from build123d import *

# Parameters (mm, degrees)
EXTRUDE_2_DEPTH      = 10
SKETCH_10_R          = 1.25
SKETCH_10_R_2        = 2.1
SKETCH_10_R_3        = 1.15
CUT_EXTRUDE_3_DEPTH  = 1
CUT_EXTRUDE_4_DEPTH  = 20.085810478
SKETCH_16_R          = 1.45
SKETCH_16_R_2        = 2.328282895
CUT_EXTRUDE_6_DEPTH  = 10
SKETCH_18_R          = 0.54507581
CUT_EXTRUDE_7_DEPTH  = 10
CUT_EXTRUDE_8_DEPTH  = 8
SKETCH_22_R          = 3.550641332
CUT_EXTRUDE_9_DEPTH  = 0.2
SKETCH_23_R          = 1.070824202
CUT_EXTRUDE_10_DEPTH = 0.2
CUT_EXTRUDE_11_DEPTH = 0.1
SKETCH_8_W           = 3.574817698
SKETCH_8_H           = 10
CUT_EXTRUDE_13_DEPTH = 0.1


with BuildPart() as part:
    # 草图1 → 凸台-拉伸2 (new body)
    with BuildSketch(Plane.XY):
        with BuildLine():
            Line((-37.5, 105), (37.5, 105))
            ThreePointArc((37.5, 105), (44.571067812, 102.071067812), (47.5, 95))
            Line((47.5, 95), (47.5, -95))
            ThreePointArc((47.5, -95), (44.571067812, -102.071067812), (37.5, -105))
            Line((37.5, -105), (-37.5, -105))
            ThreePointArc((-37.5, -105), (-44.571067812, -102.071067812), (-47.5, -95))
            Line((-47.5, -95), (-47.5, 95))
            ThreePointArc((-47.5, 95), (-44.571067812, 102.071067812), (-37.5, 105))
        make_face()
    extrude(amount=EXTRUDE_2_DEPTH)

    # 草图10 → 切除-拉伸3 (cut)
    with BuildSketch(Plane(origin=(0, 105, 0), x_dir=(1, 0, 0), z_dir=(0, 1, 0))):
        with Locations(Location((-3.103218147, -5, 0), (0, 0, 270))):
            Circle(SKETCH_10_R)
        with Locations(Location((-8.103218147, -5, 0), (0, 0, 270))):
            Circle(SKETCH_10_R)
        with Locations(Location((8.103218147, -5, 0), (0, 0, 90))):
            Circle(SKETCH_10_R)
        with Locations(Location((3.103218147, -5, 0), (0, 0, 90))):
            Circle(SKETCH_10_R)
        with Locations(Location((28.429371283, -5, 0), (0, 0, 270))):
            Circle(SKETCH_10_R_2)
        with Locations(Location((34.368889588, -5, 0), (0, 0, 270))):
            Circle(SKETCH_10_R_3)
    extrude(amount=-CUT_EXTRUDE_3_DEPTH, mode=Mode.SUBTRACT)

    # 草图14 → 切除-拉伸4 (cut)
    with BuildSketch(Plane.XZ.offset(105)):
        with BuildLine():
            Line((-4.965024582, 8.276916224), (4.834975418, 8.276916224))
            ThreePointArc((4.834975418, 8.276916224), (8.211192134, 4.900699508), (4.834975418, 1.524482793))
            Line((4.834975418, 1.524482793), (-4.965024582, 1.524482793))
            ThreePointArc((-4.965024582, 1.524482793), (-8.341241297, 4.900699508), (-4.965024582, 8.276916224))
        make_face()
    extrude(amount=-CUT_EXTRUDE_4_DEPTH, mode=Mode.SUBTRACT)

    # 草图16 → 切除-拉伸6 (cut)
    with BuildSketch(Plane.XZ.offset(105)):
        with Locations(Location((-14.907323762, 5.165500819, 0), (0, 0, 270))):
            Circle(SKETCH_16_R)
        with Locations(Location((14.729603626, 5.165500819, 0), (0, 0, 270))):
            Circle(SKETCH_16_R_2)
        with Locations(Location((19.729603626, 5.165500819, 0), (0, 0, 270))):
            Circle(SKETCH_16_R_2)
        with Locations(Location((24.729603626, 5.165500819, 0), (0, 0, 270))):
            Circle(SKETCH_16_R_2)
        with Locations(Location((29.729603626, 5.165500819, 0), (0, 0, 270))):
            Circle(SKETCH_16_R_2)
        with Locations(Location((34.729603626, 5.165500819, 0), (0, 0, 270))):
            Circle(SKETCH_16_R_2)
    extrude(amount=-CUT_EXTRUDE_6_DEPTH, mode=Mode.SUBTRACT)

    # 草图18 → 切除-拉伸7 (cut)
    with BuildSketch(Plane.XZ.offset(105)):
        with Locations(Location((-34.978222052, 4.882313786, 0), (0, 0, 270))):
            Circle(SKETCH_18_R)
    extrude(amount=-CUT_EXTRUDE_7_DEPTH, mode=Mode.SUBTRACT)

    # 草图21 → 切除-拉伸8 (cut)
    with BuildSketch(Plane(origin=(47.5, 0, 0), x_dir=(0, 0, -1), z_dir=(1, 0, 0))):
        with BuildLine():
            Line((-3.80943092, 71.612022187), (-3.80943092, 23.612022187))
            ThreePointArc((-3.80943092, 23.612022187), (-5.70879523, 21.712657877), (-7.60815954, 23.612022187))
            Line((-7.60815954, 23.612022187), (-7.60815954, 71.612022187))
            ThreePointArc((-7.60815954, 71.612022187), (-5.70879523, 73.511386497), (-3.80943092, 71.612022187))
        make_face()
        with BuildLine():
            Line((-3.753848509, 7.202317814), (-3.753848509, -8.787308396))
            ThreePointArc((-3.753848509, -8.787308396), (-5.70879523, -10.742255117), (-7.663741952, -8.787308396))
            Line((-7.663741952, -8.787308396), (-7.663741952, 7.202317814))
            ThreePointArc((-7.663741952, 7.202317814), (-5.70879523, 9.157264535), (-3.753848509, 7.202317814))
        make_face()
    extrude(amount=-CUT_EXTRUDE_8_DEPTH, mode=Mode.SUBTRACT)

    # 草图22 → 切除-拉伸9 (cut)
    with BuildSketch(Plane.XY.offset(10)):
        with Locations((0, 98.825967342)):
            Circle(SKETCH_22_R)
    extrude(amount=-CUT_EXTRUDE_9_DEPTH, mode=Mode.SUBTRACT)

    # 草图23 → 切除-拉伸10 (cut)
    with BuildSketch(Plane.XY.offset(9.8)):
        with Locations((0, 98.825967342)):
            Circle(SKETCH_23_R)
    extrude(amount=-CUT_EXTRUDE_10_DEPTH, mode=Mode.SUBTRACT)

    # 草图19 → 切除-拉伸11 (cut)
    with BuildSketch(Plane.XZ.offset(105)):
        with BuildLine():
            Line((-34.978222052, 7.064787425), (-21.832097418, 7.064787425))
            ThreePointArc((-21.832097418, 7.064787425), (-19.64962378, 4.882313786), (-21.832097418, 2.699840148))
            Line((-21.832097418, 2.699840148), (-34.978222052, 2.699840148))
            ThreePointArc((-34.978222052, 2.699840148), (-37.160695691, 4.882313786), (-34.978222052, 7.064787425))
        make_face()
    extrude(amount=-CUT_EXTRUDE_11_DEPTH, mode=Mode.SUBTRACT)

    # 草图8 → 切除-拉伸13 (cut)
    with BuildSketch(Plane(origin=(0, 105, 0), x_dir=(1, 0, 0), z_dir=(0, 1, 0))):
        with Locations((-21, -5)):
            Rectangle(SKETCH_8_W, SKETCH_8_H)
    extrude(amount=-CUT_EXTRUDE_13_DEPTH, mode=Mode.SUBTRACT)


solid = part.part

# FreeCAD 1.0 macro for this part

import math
import FreeCAD as App
import Part
import Sketcher
Q = App.Units.Quantity

doc = App.newDocument("Part")
body = doc.addObject("PartDesign::Body", "Body")

# Sketch on XY plane
sketch1 = body.newObject("Sketcher::SketchObject", "Sketch")
sketch1.AttachmentSupport = (doc.getObject("XY_Plane"), [""])
sketch1.MapMode = "FlatFace"
sketch1.addGeometry([
    Part.LineSegment(App.Vector(38, 105, 0), App.Vector(-38, 105, 0)),  # 0
    Part.ArcOfCircle(Part.Circle(App.Vector(-38, 95, 0), App.Vector(0, 0, 1), 10), math.radians(90), math.radians(180)),  # 1
    Part.LineSegment(App.Vector(-48, 95, 0), App.Vector(-48, -95, 0)),  # 2
    Part.ArcOfCircle(Part.Circle(App.Vector(-38, -95, 0), App.Vector(0, 0, 1), 10), math.radians(180), math.radians(270)),  # 3
    Part.LineSegment(App.Vector(-38, -105, 0), App.Vector(38, -105, 0)),  # 4
    Part.ArcOfCircle(Part.Circle(App.Vector(38, -95, 0), App.Vector(0, 0, 1), 10), math.radians(-90), math.radians(0)),  # 5
    Part.LineSegment(App.Vector(48, -95, 0), App.Vector(48, 95, 0)),  # 6
    Part.ArcOfCircle(Part.Circle(App.Vector(38, 95, 0), App.Vector(0, 0, 1), 10), math.radians(0), math.radians(90)),  # 7
], False)
sketch1.addConstraint([
    Sketcher.Constraint("Tangent", 0, 2, 1, 1),
    Sketcher.Constraint("Tangent", 1, 2, 2, 1),
    Sketcher.Constraint("Tangent", 2, 2, 3, 1),
    Sketcher.Constraint("Tangent", 3, 2, 4, 1),
    Sketcher.Constraint("Tangent", 4, 2, 5, 1),
    Sketcher.Constraint("Tangent", 5, 2, 6, 1),
    Sketcher.Constraint("Tangent", 6, 2, 7, 1),
    Sketcher.Constraint("Tangent", 7, 2, 0, 1),
    Sketcher.Constraint("Horizontal", 0),
    Sketcher.Constraint("Vertical", 2),
    Sketcher.Constraint("Horizontal", 4),
    Sketcher.Constraint("Vertical", 6),
    Sketcher.Constraint("Equal", 1, 3),
    Sketcher.Constraint("Equal", 3, 5),
    Sketcher.Constraint("Equal", 5, 7),
    Sketcher.Constraint("Symmetric", 1, 3, 5, 3, -1, 1),
    Sketcher.Constraint("Radius", 1, Q("10 mm")),
    Sketcher.Constraint("DistanceX", 0, 2, 0, 1, Q("75 mm")),
    Sketcher.Constraint("DistanceY", 2, 2, 2, 1, Q("190 mm")),
])
pad1 = body.newObject("PartDesign::Pad", "Pad")
pad1.Profile = sketch1
pad1.Length = 10

# Sketch on XZ plane
sketch2 = body.newObject("Sketcher::SketchObject", "Sketch001")
sketch2.AttachmentSupport = (doc.getObject("XZ_Plane"), [""])
sketch2.MapMode = "FlatFace"
sketch2.AttachmentOffset = App.Placement(App.Vector(0, 0, -105), App.Rotation())
sketch2.addGeometry([
    Part.Circle(App.Vector(-3.1, 5, 0), App.Vector(0, 0, 1), 1.2),  # 0
    Part.Circle(App.Vector(-8.1, 5, 0), App.Vector(0, 0, 1), 1.2),  # 1
    Part.Circle(App.Vector(8.1, 5, 0), App.Vector(0, 0, 1), 1.2),  # 2
    Part.Circle(App.Vector(3.1, 5, 0), App.Vector(0, 0, 1), 1.2),  # 3
    Part.Circle(App.Vector(28.4, 5, 0), App.Vector(0, 0, 1), 2.1),  # 4
    Part.Circle(App.Vector(34.4, 5, 0), App.Vector(0, 0, 1), 1.1),  # 5
], False)
sketch2.addConstraint([
    Sketcher.Constraint("Equal", 0, 1),
    Sketcher.Constraint("Equal", 1, 2),
    Sketcher.Constraint("Equal", 2, 3),
    Sketcher.Constraint("Symmetric", 1, 3, 2, 3, -2),
    Sketcher.Constraint("Symmetric", 0, 3, 3, 3, -2),
    Sketcher.Constraint("Horizontal", 0, 3, 1, 3),
    Sketcher.Constraint("Horizontal", 3, 3, 4, 3),
    Sketcher.Constraint("Horizontal", 4, 3, 5, 3),
    Sketcher.Constraint("Diameter", 0, Q("2.5 mm")),
    Sketcher.Constraint("Diameter", 4, Q("4.2 mm")),
    Sketcher.Constraint("Diameter", 5, Q("2.3 mm")),
    Sketcher.Constraint("DistanceY", -1, 1, 0, 3, Q("5 mm")),
    Sketcher.Constraint("DistanceX", 1, 3, 0, 3, Q("5 mm")),
    Sketcher.Constraint("DistanceX", 0, 3, -1, 1, Q("3.103218 mm")),
    Sketcher.Constraint("DistanceX", -1, 1, 4, 3, Q("28.429371 mm")),
    Sketcher.Constraint("DistanceX", -1, 1, 5, 3, Q("34.36889 mm")),
])
pocket1 = body.newObject("PartDesign::Pocket", "Pocket")
pocket1.Profile = sketch2
pocket1.Length = 1
pocket1.Reversed = True

# Sketch on XZ plane
sketch3 = body.newObject("Sketcher::SketchObject", "Sketch002")
sketch3.AttachmentSupport = (doc.getObject("XZ_Plane"), [""])
sketch3.MapMode = "FlatFace"
sketch3.AttachmentOffset = App.Placement(App.Vector(0, 0, 105), App.Rotation())
sketch3.addGeometry([
    Part.LineSegment(App.Vector(4.8, 8.3, 0), App.Vector(-5, 8.3, 0)),
    Part.ArcOfCircle(Part.Circle(App.Vector(-5, 4.9, 0), App.Vector(0, 0, 1), 3.4), math.radians(90), math.radians(270)),
    Part.LineSegment(App.Vector(-5, 1.5, 0), App.Vector(4.8, 1.5, 0)),
    Part.ArcOfCircle(Part.Circle(App.Vector(4.8, 4.9, 0), App.Vector(0, 0, 1), 3.4), math.radians(-90), math.radians(90)),
], False)
sketch3.addConstraint([
    Sketcher.Constraint("Tangent", 0, 2, 1, 1),
    Sketcher.Constraint("Tangent", 1, 2, 2, 1),
    Sketcher.Constraint("Tangent", 2, 2, 3, 1),
    Sketcher.Constraint("Tangent", 3, 2, 0, 1),
    Sketcher.Constraint("Horizontal", 0),
    Sketcher.Constraint("Horizontal", 2),
    Sketcher.Constraint("DistanceX", 0, 2, 0, 1, Q("9.8 mm")),
    Sketcher.Constraint("Radius", 1, Q("3.376217 mm")),
    Sketcher.Constraint("DistanceY", -1, 1, 1, 3, Q("4.9007 mm")),
    Sketcher.Constraint("DistanceX", 1, 3, -1, 1, Q("4.965025 mm")),
])
pocket2 = body.newObject("PartDesign::Pocket", "Pocket001")
pocket2.Profile = sketch3
pocket2.Length = 20.08581

# Sketch on XZ plane
sketch4 = body.newObject("Sketcher::SketchObject", "Sketch003")
sketch4.AttachmentSupport = (doc.getObject("XZ_Plane"), [""])
sketch4.MapMode = "FlatFace"
sketch4.AttachmentOffset = App.Placement(App.Vector(0, 0, 105), App.Rotation())
sketch4.addGeometry([
    Part.Circle(App.Vector(-14.9, 5.2, 0), App.Vector(0, 0, 1), 1.4),  # 0
    Part.Circle(App.Vector(14.7, 5.2, 0), App.Vector(0, 0, 1), 2.3),  # 1
    Part.Circle(App.Vector(19.7, 5.2, 0), App.Vector(0, 0, 1), 2.3),  # 2
    Part.Circle(App.Vector(24.7, 5.2, 0), App.Vector(0, 0, 1), 2.3),  # 3
    Part.Circle(App.Vector(29.7, 5.2, 0), App.Vector(0, 0, 1), 2.3),  # 4
    Part.Circle(App.Vector(34.7, 5.2, 0), App.Vector(0, 0, 1), 2.3),  # 5
], False)
sketch4.addConstraint([
    Sketcher.Constraint("Equal", 1, 2),
    Sketcher.Constraint("Equal", 2, 3),
    Sketcher.Constraint("Equal", 3, 4),
    Sketcher.Constraint("Equal", 4, 5),
    Sketcher.Constraint("Horizontal", 0, 3, 1, 3),
    Sketcher.Constraint("Horizontal", 1, 3, 2, 3),
    Sketcher.Constraint("Horizontal", 2, 3, 3, 3),
    Sketcher.Constraint("Horizontal", 3, 3, 4, 3),
    Sketcher.Constraint("Horizontal", 4, 3, 5, 3),
    Sketcher.Constraint("Diameter", 0, Q("2.9 mm")),
    Sketcher.Constraint("DistanceX", 1, 3, 2, 3, Q("5 mm")),
    Sketcher.Constraint("DistanceX", 2, 3, 3, 3, Q("5 mm")),
    Sketcher.Constraint("DistanceX", 3, 3, 4, 3, Q("5 mm")),
    Sketcher.Constraint("DistanceX", 4, 3, 5, 3, Q("5 mm")),
    Sketcher.Constraint("Diameter", 1, Q("4.656566 mm")),
    Sketcher.Constraint("DistanceY", -1, 1, 0, 3, Q("5.165501 mm")),
    Sketcher.Constraint("DistanceX", 0, 3, -1, 1, Q("14.907324 mm")),
    Sketcher.Constraint("DistanceX", -1, 1, 1, 3, Q("14.729604 mm")),
])
pocket3 = body.newObject("PartDesign::Pocket", "Pocket002")
pocket3.Profile = sketch4
pocket3.Length = 10

# Sketch on XZ plane
sketch5 = body.newObject("Sketcher::SketchObject", "Sketch004")
sketch5.AttachmentSupport = (doc.getObject("XZ_Plane"), [""])
sketch5.MapMode = "FlatFace"
sketch5.AttachmentOffset = App.Placement(App.Vector(0, 0, 105), App.Rotation())
sketch5.addGeometry(Part.Circle(App.Vector(-35, 4.9, 0), App.Vector(0, 0, 1), 0.5), False)
sketch5.addConstraint([
    Sketcher.Constraint("Diameter", 0, Q("1.090152 mm")),
    Sketcher.Constraint("DistanceX", 0, 3, -1, 1, Q("34.978222 mm")),
    Sketcher.Constraint("DistanceY", -1, 1, 0, 3, Q("4.882314 mm")),
])
pocket4 = body.newObject("PartDesign::Pocket", "Pocket003")
pocket4.Profile = sketch5
pocket4.Length = 10

# Sketch on YZ plane
sketch6 = body.newObject("Sketcher::SketchObject", "Sketch005")
sketch6.AttachmentSupport = (doc.getObject("YZ_Plane"), [""])
sketch6.MapMode = "FlatFace"
sketch6.AttachmentOffset = App.Placement(App.Vector(0, 0, 47.5), App.Rotation())
sketch6.addGeometry([
    Part.LineSegment(App.Vector(23.6, 3.8, 0), App.Vector(71.6, 3.8, 0)),  # 0
    Part.ArcOfCircle(Part.Circle(App.Vector(71.6, 5.7, 0), App.Vector(0, 0, 1), 1.9), math.radians(-90), math.radians(90)),  # 1
    Part.LineSegment(App.Vector(71.6, 7.6, 0), App.Vector(23.6, 7.6, 0)),  # 2
    Part.ArcOfCircle(Part.Circle(App.Vector(23.6, 5.7, 0), App.Vector(0, 0, 1), 1.9), math.radians(90), math.radians(270)),  # 3
    Part.LineSegment(App.Vector(-8.8, 3.8, 0), App.Vector(7.2, 3.8, 0)),  # 4
    Part.ArcOfCircle(Part.Circle(App.Vector(7.2, 5.7, 0), App.Vector(0, 0, 1), 2), math.radians(-90), math.radians(90)),  # 5
    Part.LineSegment(App.Vector(7.2, 7.7, 0), App.Vector(-8.8, 7.7, 0)),  # 6
    Part.ArcOfCircle(Part.Circle(App.Vector(-8.8, 5.7, 0), App.Vector(0, 0, 1), 2), math.radians(90), math.radians(270)),  # 7
], False)
sketch6.addConstraint([
    Sketcher.Constraint("Tangent", 0, 2, 1, 1),
    Sketcher.Constraint("Tangent", 1, 2, 2, 1),
    Sketcher.Constraint("Tangent", 2, 2, 3, 1),
    Sketcher.Constraint("Tangent", 3, 2, 0, 1),
    Sketcher.Constraint("Tangent", 4, 2, 5, 1),
    Sketcher.Constraint("Tangent", 5, 2, 6, 1),
    Sketcher.Constraint("Tangent", 6, 2, 7, 1),
    Sketcher.Constraint("Tangent", 7, 2, 4, 1),
    Sketcher.Constraint("Horizontal", 0),
    Sketcher.Constraint("Horizontal", 2),
    Sketcher.Constraint("Horizontal", 4),
    Sketcher.Constraint("Horizontal", 6),
    Sketcher.Constraint("Horizontal", 3, 3, 5, 3),
    Sketcher.Constraint("DistanceX", 0, 1, 0, 2, Q("48 mm")),
    Sketcher.Constraint("Radius", 1, Q("1.899364 mm")),
    Sketcher.Constraint("Radius", 5, Q("1.954947 mm")),
    Sketcher.Constraint("DistanceX", 4, 1, 4, 2, Q("15.989626 mm")),
    Sketcher.Constraint("DistanceX", 7, 3, -1, 1, Q("8.787308 mm")),
    Sketcher.Constraint("DistanceY", -1, 1, 0, 2, Q("3.809431 mm")),
    Sketcher.Constraint("DistanceX", 7, 3, 3, 3, Q("32.399331 mm")),
])
pocket5 = body.newObject("PartDesign::Pocket", "Pocket004")
pocket5.Profile = sketch6
pocket5.Length = 8

# Sketch on XY plane
sketch7 = body.newObject("Sketcher::SketchObject", "Sketch006")
sketch7.AttachmentSupport = (doc.getObject("XY_Plane"), [""])
sketch7.MapMode = "FlatFace"
sketch7.AttachmentOffset = App.Placement(App.Vector(0, 0, 10), App.Rotation())
sketch7.addGeometry(Part.Circle(App.Vector(0, 98.8, 0), App.Vector(0, 0, 1), 3.6), False)
sketch7.addConstraint([
    Sketcher.Constraint("PointOnObject", 0, 3, -2),
    Sketcher.Constraint("Diameter", 0, Q("7.101283 mm")),
    Sketcher.Constraint("DistanceY", -1, 1, 0, 3, Q("98.825967 mm")),
])
pocket6 = body.newObject("PartDesign::Pocket", "Pocket005")
pocket6.Profile = sketch7
pocket6.Length = 0.2

# Sketch on XY plane
sketch8 = body.newObject("Sketcher::SketchObject", "Sketch007")
sketch8.AttachmentSupport = (doc.getObject("XY_Plane"), [""])
sketch8.MapMode = "FlatFace"
sketch8.AttachmentOffset = App.Placement(App.Vector(0, 0, 9.8), App.Rotation())
sketch8.addGeometry(Part.Circle(App.Vector(0, 98.8, 0), App.Vector(0, 0, 1), 1.1), False)
sketch8.addConstraint([
    Sketcher.Constraint("PointOnObject", 0, 3, -2),
    Sketcher.Constraint("Diameter", 0, Q("2.141648 mm")),
    Sketcher.Constraint("DistanceY", -1, 1, 0, 3, Q("98.825967 mm")),
])
pocket7 = body.newObject("PartDesign::Pocket", "Pocket006")
pocket7.Profile = sketch8
pocket7.Length = 0.2

# Sketch on XZ plane
sketch9 = body.newObject("Sketcher::SketchObject", "Sketch008")
sketch9.AttachmentSupport = (doc.getObject("XZ_Plane"), [""])
sketch9.MapMode = "FlatFace"
sketch9.AttachmentOffset = App.Placement(App.Vector(0, 0, 105), App.Rotation())
sketch9.addGeometry([
    Part.LineSegment(App.Vector(-21.8, 7.1, 0), App.Vector(-35, 7.1, 0)),
    Part.ArcOfCircle(Part.Circle(App.Vector(-35, 4.9, 0), App.Vector(0, 0, 1), 2.2), math.radians(90), math.radians(270)),
    Part.LineSegment(App.Vector(-35, 2.7, 0), App.Vector(-21.8, 2.7, 0)),
    Part.ArcOfCircle(Part.Circle(App.Vector(-21.8, 4.9, 0), App.Vector(0, 0, 1), 2.2), math.radians(-90), math.radians(90)),
], False)
sketch9.addConstraint([
    Sketcher.Constraint("Tangent", 0, 2, 1, 1),
    Sketcher.Constraint("Tangent", 1, 2, 2, 1),
    Sketcher.Constraint("Tangent", 2, 2, 3, 1),
    Sketcher.Constraint("Tangent", 3, 2, 0, 1),
    Sketcher.Constraint("Horizontal", 0),
    Sketcher.Constraint("Horizontal", 2),
    Sketcher.Constraint("Radius", 1, Q("2.182474 mm")),
    Sketcher.Constraint("DistanceX", 0, 2, 0, 1, Q("13.146125 mm")),
    Sketcher.Constraint("DistanceY", -1, 1, 1, 2, Q("2.69984 mm")),
    Sketcher.Constraint("DistanceX", 1, 3, -1, 1, Q("34.978222 mm")),
])
pocket8 = body.newObject("PartDesign::Pocket", "Pocket007")
pocket8.Profile = sketch9
pocket8.Length = 0.1

# Sketch on XZ plane
sketch10 = body.newObject("Sketcher::SketchObject", "Sketch009")
sketch10.AttachmentSupport = (doc.getObject("XZ_Plane"), [""])
sketch10.MapMode = "FlatFace"
sketch10.AttachmentOffset = App.Placement(App.Vector(0, 0, -105), App.Rotation())
sketch10.addGeometry([
    Part.LineSegment(App.Vector(-22.8, 0, 0), App.Vector(-22.8, 10, 0)),
    Part.LineSegment(App.Vector(-22.8, 10, 0), App.Vector(-19.2, 10, 0)),
    Part.LineSegment(App.Vector(-19.2, 10, 0), App.Vector(-19.2, 0, 0)),
    Part.LineSegment(App.Vector(-19.2, 0, 0), App.Vector(-22.8, 0, 0)),
], False)
sketch10.addConstraint([
    Sketcher.Constraint("Coincident", 0, 2, 1, 1),
    Sketcher.Constraint("Coincident", 1, 2, 2, 1),
    Sketcher.Constraint("Coincident", 2, 2, 3, 1),
    Sketcher.Constraint("Coincident", 3, 2, 0, 1),
    Sketcher.Constraint("Vertical", 0),
    Sketcher.Constraint("Horizontal", 1),
    Sketcher.Constraint("Vertical", 2),
    Sketcher.Constraint("Horizontal", 3),
    Sketcher.Constraint("PointOnObject", 2, 2, -1),
    Sketcher.Constraint("DistanceY", 0, 1, 0, 2, Q("10 mm")),
    Sketcher.Constraint("DistanceX", 1, 1, 1, 2, Q("3.574818 mm")),
    Sketcher.Constraint("DistanceX", 0, 2, -1, 1, Q("22.787409 mm")),
])
pocket9 = body.newObject("PartDesign::Pocket", "Pocket008")
pocket9.Profile = sketch10
pocket9.Length = 0.1
pocket9.Reversed = True

doc.recompute()
